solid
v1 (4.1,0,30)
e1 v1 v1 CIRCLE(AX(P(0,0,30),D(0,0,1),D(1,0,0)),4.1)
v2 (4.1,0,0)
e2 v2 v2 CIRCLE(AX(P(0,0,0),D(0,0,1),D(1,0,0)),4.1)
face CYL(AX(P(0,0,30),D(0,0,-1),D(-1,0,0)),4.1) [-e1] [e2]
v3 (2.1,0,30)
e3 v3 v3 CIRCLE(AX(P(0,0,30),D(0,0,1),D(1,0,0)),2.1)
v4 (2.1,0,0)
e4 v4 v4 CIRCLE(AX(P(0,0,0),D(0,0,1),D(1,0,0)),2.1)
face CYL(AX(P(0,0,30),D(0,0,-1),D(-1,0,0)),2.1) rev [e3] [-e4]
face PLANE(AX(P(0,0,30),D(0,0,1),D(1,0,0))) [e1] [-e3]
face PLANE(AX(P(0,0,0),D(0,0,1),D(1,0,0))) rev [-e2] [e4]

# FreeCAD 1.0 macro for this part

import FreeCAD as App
import Part
import Sketcher

V = App.Vector
Q = App.Units.Quantity

doc = App.newDocument("Part")
body = doc.addObject("PartDesign::Body", "Body")

# Sketch on XY plane
sketch1 = body.newObject("Sketcher::SketchObject", "Sketch")
sketch1.AttachmentSupport = (doc.getObject("XY_Plane"), [""])
sketch1.MapMode = "FlatFace"
sketch1.addGeometry(Part.Circle(V(0, 0, 0), V(0, 0, 1), 4.1), False)
sketch1.addGeometry(Part.Circle(V(0, 0, 0), V(0, 0, 1), 2.1), False)
sketch1.addConstraint(Sketcher.Constraint("Coincident", 0, 3, -1, 1))
sketch1.addConstraint(Sketcher.Constraint("Coincident", 1, 3, -1, 1))
sketch1.addConstraint(Sketcher.Constraint("Diameter", 0, Q("8.2 mm")))
sketch1.addConstraint(Sketcher.Constraint("Diameter", 1, Q("4.2 mm")))
pad1 = body.newObject("PartDesign::Pad", "Pad")
pad1.Profile = sketch1
pad1.Length = 30

doc.recompute()
